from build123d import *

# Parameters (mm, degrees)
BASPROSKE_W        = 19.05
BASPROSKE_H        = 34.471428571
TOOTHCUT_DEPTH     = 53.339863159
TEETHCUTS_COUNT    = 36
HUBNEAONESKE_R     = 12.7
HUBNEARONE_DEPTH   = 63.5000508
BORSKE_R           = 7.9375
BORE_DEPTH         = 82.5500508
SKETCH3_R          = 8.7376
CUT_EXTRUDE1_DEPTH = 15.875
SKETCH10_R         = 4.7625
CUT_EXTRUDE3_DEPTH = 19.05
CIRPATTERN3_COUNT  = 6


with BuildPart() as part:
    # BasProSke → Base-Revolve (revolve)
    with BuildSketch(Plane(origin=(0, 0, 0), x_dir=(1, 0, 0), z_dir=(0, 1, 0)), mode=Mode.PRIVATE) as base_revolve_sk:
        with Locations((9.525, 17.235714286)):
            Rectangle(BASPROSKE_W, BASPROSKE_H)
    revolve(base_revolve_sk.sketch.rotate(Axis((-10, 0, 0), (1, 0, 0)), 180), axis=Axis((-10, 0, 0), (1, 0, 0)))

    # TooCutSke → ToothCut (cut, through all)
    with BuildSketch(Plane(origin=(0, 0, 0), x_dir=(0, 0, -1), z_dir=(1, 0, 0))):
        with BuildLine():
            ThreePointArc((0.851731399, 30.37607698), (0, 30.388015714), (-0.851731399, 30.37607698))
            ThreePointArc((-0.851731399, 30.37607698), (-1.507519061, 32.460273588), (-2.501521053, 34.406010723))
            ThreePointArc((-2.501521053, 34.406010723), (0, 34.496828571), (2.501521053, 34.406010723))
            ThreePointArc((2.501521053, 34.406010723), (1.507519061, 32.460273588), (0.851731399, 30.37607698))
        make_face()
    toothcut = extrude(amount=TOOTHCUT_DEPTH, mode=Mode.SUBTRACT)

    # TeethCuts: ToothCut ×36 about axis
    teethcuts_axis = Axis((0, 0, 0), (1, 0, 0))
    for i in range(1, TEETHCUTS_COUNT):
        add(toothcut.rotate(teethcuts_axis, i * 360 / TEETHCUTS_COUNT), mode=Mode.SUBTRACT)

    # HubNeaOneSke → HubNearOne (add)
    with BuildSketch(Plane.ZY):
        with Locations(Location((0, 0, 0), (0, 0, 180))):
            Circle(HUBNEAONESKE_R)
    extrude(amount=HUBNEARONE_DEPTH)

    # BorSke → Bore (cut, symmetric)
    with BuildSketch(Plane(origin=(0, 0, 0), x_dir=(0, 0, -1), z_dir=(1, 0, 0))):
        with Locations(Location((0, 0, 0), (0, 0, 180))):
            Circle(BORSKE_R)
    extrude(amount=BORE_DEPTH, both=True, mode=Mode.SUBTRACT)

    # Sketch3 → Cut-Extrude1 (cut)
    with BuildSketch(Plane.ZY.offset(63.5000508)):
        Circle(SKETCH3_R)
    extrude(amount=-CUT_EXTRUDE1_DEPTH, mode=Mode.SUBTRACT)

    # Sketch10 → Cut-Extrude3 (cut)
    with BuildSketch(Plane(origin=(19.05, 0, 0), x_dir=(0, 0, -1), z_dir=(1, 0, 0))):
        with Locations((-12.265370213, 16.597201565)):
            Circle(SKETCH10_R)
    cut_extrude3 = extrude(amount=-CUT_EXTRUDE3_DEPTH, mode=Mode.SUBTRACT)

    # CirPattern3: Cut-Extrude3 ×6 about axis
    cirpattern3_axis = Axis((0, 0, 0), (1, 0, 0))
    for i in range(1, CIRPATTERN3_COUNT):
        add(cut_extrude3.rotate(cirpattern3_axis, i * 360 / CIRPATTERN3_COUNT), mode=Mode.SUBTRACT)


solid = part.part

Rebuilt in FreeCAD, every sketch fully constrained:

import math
import FreeCAD as App
import Part
import Sketcher
Q = App.Units.Quantity


def add_polygon(sketch, points):
    """Adds a closed chain of lines whose ends are joined by coincident constraints."""
    first, n = sketch.GeometryCount, len(points)
    for a, b in zip(points, points[1:] + points[:1]):
        sketch.addGeometry(Part.LineSegment(App.Vector(*a, 0), App.Vector(*b, 0)), False)
    for i in range(n):
        sketch.addConstraint(Sketcher.Constraint("Coincident", first + i, 2, first + (i + 1) % n, 1))

doc = App.newDocument("Part")
body = doc.addObject("PartDesign::Body", "Body")

sketch1 = body.newObject("Sketcher::SketchObject", "Sketch")
sketch1.AttachmentSupport = (doc.getObject("XZ_Plane"), [""])
sketch1.MapMode = "FlatFace"
add_polygon(sketch1, [(0, -34), (0, 0), (19, 0), (19, -34)])
sketch1.addConstraint(Sketcher.Constraint("Vertical", 0))
sketch1.addConstraint(Sketcher.Constraint("Horizontal", 1))
sketch1.addConstraint(Sketcher.Constraint("Vertical", 2))
sketch1.addConstraint(Sketcher.Constraint("Horizontal", 3))
sketch1.addConstraint(Sketcher.Constraint("Coincident", 0, 2, -1, 1))
sketch1.addConstraint(Sketcher.Constraint("DistanceX", 1, 1, 1, 2, Q("0.75 in")))
sketch1.addConstraint(Sketcher.Constraint("DistanceY", 0, 1, 0, 2, 34.471429))
revolution = body.newObject("PartDesign::Revolution", "Revolution")
revolution.Profile = sketch1
revolution.ReferenceAxis = (sketch1, ["H_Axis"])
revolution.Angle = 360

sketch2 = body.newObject("Sketcher::SketchObject", "Sketch001")
sketch2.AttachmentSupport = (doc.getObject("YZ_Plane"), [""])
sketch2.MapMode = "FlatFace"
sketch2.addGeometry(Part.ArcOfCircle(Part.Circle(App.Vector(0, 0, 0), App.Vector(0, 0, 1), 30.4), math.radians(-1.61), math.radians(1.61)), False)
sketch2.addGeometry(Part.ArcOfCircle(Part.Circle(App.Vector(27.5, -13.6, 0), App.Vector(0, 0, 1), 13.1), math.radians(58.14), math.radians(77.33)), False)
sketch2.addGeometry(Part.ArcOfCircle(Part.Circle(App.Vector(0, 0, 0), App.Vector(0, 0, 1), 34.5), math.radians(-4.16), math.radians(4.16)), False)
sketch2.addGeometry(Part.ArcOfCircle(Part.Circle(App.Vector(27.5, 13.6, 0), App.Vector(0, 0, 1), 13.1), math.radians(-77.33), math.radians(-58.14)), False)
sketch2.addConstraint(Sketcher.Constraint("Coincident", 0, 1, 1, 2))
sketch2.addConstraint(Sketcher.Constraint("Coincident", 1, 1, 2, 1))
sketch2.addConstraint(Sketcher.Constraint("Coincident", 2, 2, 3, 2))
sketch2.addConstraint(Sketcher.Constraint("Coincident", 3, 1, 0, 2))
sketch2.addConstraint(Sketcher.Constraint("Coincident", 0, 3, -1, 1))
sketch2.addConstraint(Sketcher.Constraint("Coincident", 2, 3, -1, 1))
sketch2.addConstraint(Sketcher.Constraint("Equal", 1, 3))
sketch2.addConstraint(Sketcher.Constraint("Symmetric", 1, 3, 3, 3, -1))
sketch2.addConstraint(Sketcher.Constraint("Radius", 2, 34.496829))
sketch2.addConstraint(Sketcher.Constraint("Radius", 0, 30.388017))
sketch2.addConstraint(Sketcher.Constraint("Radius", 1, 13.062857))
sketch2.addConstraint(Sketcher.Constraint("DistanceY", 0, 1, -1, 1, 0.851731))
sketch2.addConstraint(Sketcher.Constraint("DistanceY", 1, 1, -1, 1, 2.501521))
pocket1 = body.newObject("PartDesign::Pocket", "Pocket")
pocket1.Profile = sketch2
pocket1.Type = "ThroughAll"
pocket1.Reversed = True
doc.recompute()

polarpattern = body.newObject("PartDesign::PolarPattern", "PolarPattern")
polarpattern.Originals = [pocket1]
polarpattern.Axis = (doc.getObject("X_Axis"), [""])
polarpattern.Angle = 360
polarpattern.Occurrences = 36
body.Tip = polarpattern

sketch3 = body.newObject("Sketcher::SketchObject", "Sketch002")
sketch3.AttachmentSupport = (doc.getObject("YZ_Plane"), [""])
sketch3.MapMode = "FlatFace"
sketch3.addGeometry(Part.Circle(App.Vector(0, 0, 0), App.Vector(0, 0, 1), 13), False)
sketch3.addConstraint(Sketcher.Constraint("Coincident", 0, 3, -1, 1))
sketch3.addConstraint(Sketcher.Constraint("Diameter", 0, Q("1 in")))
pad1 = body.newObject("PartDesign::Pad", "Pad")
pad1.Profile = sketch3
pad1.Length = 63.500051
pad1.Reversed = True

sketch4 = body.newObject("Sketcher::SketchObject", "Sketch003")
sketch4.AttachmentSupport = (doc.getObject("YZ_Plane"), [""])
sketch4.MapMode = "FlatFace"
sketch4.addGeometry(Part.Circle(App.Vector(0, 0, 0), App.Vector(0, 0, 1), 8), False)
sketch4.addConstraint(Sketcher.Constraint("Coincident", 0, 3, -1, 1))
sketch4.addConstraint(Sketcher.Constraint("Diameter", 0, Q("0.625 in")))
pocket2 = body.newObject("PartDesign::Pocket", "Pocket001")
pocket2.Profile = sketch4
pocket2.Length = 165.100102
pocket2.Midplane = True

sketch5 = body.newObject("Sketcher::SketchObject", "Sketch004")
sketch5.AttachmentSupport = (doc.getObject("YZ_Plane"), [""])
sketch5.MapMode = "FlatFace"
sketch5.AttachmentOffset = App.Placement(App.Vector(0, 0, -63.500051), App.Rotation())
sketch5.addGeometry(Part.Circle(App.Vector(0, 0, 0), App.Vector(0, 0, 1), 9), False)
sketch5.addConstraint(Sketcher.Constraint("Coincident", 0, 3, -1, 1))
sketch5.addConstraint(Sketcher.Constraint("Diameter", 0, Q("0.688 in")))
pocket3 = body.newObject("PartDesign::Pocket", "Pocket002")
pocket3.Profile = sketch5
pocket3.Length = Q("0.625 in")
pocket3.Reversed = True

sketch6 = body.newObject("Sketcher::SketchObject", "Sketch005")
sketch6.AttachmentSupport = (doc.getObject("YZ_Plane"), [""])
sketch6.MapMode = "FlatFace"
sketch6.AttachmentOffset = App.Placement(App.Vector(0, 0, 0.75 * 25.4), App.Rotation())
sketch6.addGeometry(Part.Circle(App.Vector(16.6, 12.3, 0), App.Vector(0, 0, 1), 4.8), False)
sketch6.addConstraint(Sketcher.Constraint("Diameter", 0, Q("0.375 in")))
sketch6.addConstraint(Sketcher.Constraint("DistanceX", -1, 1, 0, 3, 16.597202))
sketch6.addConstraint(Sketcher.Constraint("DistanceY", -1, 1, 0, 3, 12.26537))
pocket4 = body.newObject("PartDesign::Pocket", "Pocket003")
pocket4.Profile = sketch6
pocket4.Length = Q("0.75 in")
doc.recompute()

polarpattern2 = body.newObject("PartDesign::PolarPattern", "PolarPattern001")
polarpattern2.Originals = [pocket4]
polarpattern2.Axis = (doc.getObject("X_Axis"), [""])
polarpattern2.Angle = 360
polarpattern2.Occurrences = 6
body.Tip = polarpattern2

doc.recompute()
